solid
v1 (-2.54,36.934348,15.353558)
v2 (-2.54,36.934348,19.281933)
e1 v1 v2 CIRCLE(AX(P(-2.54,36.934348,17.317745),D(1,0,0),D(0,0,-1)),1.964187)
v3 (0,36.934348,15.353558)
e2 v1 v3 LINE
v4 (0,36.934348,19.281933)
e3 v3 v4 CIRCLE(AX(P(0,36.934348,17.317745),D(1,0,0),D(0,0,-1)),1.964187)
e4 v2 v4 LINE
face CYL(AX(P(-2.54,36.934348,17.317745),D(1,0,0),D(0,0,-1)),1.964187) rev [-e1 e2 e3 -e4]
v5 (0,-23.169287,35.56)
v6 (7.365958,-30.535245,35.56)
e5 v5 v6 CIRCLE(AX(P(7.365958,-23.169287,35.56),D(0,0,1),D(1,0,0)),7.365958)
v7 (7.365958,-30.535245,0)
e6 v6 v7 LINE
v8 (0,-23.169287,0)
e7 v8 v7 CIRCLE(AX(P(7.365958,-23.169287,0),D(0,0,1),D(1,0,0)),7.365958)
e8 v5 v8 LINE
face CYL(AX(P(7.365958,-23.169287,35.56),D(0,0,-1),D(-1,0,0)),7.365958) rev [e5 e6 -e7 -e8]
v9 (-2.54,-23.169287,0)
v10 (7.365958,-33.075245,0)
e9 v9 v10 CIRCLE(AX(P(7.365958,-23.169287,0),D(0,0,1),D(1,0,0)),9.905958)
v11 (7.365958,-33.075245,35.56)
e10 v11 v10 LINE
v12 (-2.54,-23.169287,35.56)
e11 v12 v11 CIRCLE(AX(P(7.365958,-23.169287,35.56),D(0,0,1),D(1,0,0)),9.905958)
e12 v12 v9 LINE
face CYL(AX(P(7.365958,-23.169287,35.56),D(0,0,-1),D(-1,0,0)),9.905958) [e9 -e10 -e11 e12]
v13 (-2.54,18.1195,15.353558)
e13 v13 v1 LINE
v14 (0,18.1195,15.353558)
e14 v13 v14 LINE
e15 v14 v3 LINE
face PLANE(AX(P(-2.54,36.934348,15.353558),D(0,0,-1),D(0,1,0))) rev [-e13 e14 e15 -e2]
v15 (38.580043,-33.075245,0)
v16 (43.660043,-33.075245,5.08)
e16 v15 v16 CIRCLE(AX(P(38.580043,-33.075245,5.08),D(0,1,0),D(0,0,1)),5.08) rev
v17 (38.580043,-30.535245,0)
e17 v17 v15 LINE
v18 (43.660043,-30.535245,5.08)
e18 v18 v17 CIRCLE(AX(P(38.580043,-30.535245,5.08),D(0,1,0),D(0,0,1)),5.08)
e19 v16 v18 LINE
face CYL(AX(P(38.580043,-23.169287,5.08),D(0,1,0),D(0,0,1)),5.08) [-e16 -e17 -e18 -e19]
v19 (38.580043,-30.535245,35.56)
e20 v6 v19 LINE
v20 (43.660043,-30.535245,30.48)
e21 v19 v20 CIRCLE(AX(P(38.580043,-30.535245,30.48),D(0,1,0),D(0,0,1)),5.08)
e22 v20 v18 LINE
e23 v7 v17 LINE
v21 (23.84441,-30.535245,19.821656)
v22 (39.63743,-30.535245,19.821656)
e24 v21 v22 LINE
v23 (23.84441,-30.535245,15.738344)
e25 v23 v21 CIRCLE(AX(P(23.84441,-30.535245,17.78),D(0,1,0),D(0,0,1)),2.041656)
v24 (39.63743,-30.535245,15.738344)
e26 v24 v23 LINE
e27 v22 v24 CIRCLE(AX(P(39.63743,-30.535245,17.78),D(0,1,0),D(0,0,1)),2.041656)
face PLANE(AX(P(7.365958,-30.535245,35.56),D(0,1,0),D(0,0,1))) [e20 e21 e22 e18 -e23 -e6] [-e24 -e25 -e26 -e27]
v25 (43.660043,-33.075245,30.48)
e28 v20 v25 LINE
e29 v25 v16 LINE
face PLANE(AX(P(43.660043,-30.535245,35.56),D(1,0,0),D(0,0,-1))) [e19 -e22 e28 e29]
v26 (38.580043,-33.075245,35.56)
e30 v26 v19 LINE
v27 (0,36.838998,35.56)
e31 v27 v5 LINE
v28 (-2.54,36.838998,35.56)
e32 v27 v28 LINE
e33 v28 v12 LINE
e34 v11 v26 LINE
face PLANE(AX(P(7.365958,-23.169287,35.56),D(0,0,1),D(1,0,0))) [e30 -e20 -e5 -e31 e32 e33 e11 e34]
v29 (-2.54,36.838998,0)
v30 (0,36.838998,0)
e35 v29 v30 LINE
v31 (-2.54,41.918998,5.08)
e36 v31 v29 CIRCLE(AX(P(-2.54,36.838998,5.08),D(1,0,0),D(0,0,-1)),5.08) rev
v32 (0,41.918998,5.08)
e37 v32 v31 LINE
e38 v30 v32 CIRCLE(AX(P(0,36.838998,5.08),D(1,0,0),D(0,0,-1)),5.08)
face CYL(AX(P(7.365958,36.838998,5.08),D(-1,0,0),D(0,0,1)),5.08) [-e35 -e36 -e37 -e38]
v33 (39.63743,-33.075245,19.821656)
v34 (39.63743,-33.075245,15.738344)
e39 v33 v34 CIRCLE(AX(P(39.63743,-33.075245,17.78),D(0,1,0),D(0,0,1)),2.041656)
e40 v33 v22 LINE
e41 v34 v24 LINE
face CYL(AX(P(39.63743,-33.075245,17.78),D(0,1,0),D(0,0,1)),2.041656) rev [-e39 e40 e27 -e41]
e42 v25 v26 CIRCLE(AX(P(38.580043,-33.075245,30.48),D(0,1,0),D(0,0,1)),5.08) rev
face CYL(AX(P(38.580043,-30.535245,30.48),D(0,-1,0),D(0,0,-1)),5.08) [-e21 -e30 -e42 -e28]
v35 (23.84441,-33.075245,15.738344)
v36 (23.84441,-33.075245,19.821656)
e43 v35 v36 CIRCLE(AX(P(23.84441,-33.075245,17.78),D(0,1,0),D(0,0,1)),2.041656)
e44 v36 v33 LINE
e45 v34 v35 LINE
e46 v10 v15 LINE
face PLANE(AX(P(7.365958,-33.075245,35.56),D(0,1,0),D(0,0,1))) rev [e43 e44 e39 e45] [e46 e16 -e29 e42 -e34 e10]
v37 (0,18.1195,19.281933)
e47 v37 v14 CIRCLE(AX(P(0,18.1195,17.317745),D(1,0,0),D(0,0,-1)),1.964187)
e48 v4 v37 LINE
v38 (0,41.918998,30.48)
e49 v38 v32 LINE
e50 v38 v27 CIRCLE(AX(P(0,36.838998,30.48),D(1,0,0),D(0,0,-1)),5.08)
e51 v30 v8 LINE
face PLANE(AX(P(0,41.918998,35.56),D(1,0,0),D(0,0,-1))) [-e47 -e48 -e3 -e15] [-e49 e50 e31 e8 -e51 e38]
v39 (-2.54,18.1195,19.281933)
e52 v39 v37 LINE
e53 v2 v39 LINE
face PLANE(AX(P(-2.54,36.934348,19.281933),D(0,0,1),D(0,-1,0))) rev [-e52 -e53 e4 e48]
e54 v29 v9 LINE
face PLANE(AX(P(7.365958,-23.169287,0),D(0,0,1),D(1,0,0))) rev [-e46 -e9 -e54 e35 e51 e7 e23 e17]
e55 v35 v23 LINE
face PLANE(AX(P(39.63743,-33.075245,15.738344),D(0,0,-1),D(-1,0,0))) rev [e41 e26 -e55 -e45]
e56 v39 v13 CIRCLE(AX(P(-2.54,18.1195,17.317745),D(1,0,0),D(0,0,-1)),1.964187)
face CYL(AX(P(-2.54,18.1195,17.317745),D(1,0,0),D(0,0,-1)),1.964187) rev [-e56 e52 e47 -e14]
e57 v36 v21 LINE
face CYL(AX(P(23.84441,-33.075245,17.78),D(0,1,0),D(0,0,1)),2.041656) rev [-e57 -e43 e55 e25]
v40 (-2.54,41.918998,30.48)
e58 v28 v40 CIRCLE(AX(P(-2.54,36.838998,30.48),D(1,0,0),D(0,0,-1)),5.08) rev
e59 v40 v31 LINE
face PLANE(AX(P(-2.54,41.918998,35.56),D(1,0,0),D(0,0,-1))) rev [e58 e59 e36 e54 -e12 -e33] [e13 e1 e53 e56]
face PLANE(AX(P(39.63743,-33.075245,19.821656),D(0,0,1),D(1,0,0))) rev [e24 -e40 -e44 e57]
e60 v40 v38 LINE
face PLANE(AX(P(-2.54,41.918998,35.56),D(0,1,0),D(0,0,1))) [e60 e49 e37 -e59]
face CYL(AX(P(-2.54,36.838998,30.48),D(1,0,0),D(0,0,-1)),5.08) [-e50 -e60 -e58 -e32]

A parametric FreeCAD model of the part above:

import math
import FreeCAD as App
import Part
import Sketcher
from FreeCAD import Vector
Q = App.Units.Quantity


def edges_at(feature, points):
    """Names of the edges that pass closest to the given points."""
    edges = feature.Shape.Edges
    near = lambda p: min(range(len(edges)), key=lambda i: edges[i].distToShape(Part.Vertex(*p))[0])
    return sorted({f"Edge{near(p) + 1}" for p in points})

doc = App.newDocument("Part")
body = doc.addObject("PartDesign::Body", "Body")

sketch1 = doc.addObject("Sketcher::SketchObject", "Sketch")
body.addObject(sketch1)
sketch1.AttachmentSupport = (doc.XY_Plane, [""])
sketch1.MapMode = "FlatFace"
sketch1.addGeometry([
    Part.LineSegment(Vector(0, -23.169287, 0), Vector(0, 41.918998, 0)),
    Part.LineSegment(Vector(0, 41.918998, 0), Vector(-2.54, 41.918998, 0)),
    Part.LineSegment(Vector(-2.54, 41.918998, 0), Vector(-2.54, -23.169287, 0)),
    Part.ArcOfCircle(Part.Circle(Vector(7.365958, -23.169287, 0), Vector(0, 0, 1), 9.905958), math.radians(180), math.radians(270)),
    Part.LineSegment(Vector(7.365958, -33.075245, 0), Vector(43.660043, -33.075245, 0)),
    Part.LineSegment(Vector(43.660043, -33.075245, 0), Vector(43.660043, -30.535245, 0)),
    Part.LineSegment(Vector(43.660043, -30.535245, 0), Vector(7.365958, -30.535245, 0)),
    Part.ArcOfCircle(Part.Circle(Vector(7.365958, -23.169287, 0), Vector(0, 0, 1), 7.365958), math.radians(180), math.radians(270)),
], False)
sketch1.addConstraint([
    Sketcher.Constraint("Coincident", 0, 2, 1, 1),
    Sketcher.Constraint("Coincident", 1, 2, 2, 1),
    Sketcher.Constraint("Tangent", 2, 2, 3, 1),
    Sketcher.Constraint("Tangent", 3, 2, 4, 1),
    Sketcher.Constraint("Coincident", 4, 2, 5, 1),
    Sketcher.Constraint("Coincident", 5, 2, 6, 1),
    Sketcher.Constraint("Tangent", 6, 2, 7, 2),
    Sketcher.Constraint("Tangent", 7, 1, 0, 1),
    Sketcher.Constraint("Vertical", 0),
    Sketcher.Constraint("Horizontal", 1),
    Sketcher.Constraint("Vertical", 2),
    Sketcher.Constraint("Horizontal", 4),
    Sketcher.Constraint("Vertical", 5),
    Sketcher.Constraint("Horizontal", 6),
    Sketcher.Constraint("Coincident", 7, 3, 3, 3),
    Sketcher.Constraint("PointOnObject", 0, 2, -2),
    Sketcher.Constraint("DistanceX", 1, 2, 1, 1, Q("0.1 in")),
    Sketcher.Constraint("Radius", 3, 9.905958),
    Sketcher.Constraint("DistanceY", -1, 1, 0, 2, 41.918998),
    Sketcher.Constraint("DistanceX", 4, 1, 4, 2, 36.294085),
    Sketcher.Constraint("DistanceY", 0, 1, 0, 2, 65.088285),
])
pad1 = doc.addObject("PartDesign::Pad", "Pad")
body.addObject(pad1)
pad1.Profile = sketch1
pad1.Length = Q("1.4 in")
doc.recompute()

fillet = doc.addObject("PartDesign::Fillet", "Fillet")
body.addObject(fillet)
fillet.Base = (pad1, edges_at(pad1, [
    (-1.27, 41.919, 35.56),
    (-1.27, 41.919, 0),
    (43.66, -31.805, 35.56),
    (43.66, -31.805, 0),
]))
fillet.Radius = Q("0.2 in")

sketch2 = doc.addObject("Sketcher::SketchObject", "Sketch001")
body.addObject(sketch2)
sketch2.AttachmentSupport = (doc.YZ_Plane, [""])
sketch2.MapMode = "FlatFace"
sketch2.addGeometry([
    Part.LineSegment(Vector(18.1195, 15.353558, 0), Vector(36.934348, 15.353558, 0)),
    Part.ArcOfCircle(Part.Circle(Vector(36.934348, 17.317745, 0), Vector(0, 0, 1), 1.964187), math.radians(-90), math.radians(90)),
    Part.LineSegment(Vector(36.934348, 19.281933, 0), Vector(18.1195, 19.281933, 0)),
    Part.ArcOfCircle(Part.Circle(Vector(18.1195, 17.317745, 0), Vector(0, 0, 1), 1.964187), math.radians(90), math.radians(270)),
], False)
sketch2.addConstraint([
    Sketcher.Constraint("Tangent", 0, 2, 1, 1),
    Sketcher.Constraint("Tangent", 1, 2, 2, 1),
    Sketcher.Constraint("Tangent", 2, 2, 3, 1),
    Sketcher.Constraint("Tangent", 3, 2, 0, 1),
    Sketcher.Constraint("Horizontal", 0),
    Sketcher.Constraint("Horizontal", 2),
    Sketcher.Constraint("Radius", 1, 1.964187),
    Sketcher.Constraint("DistanceX", 0, 1, 0, 2, 18.814848),
    Sketcher.Constraint("DistanceX", -1, 1, 3, 3, 18.1195),
    Sketcher.Constraint("DistanceY", -1, 1, 1, 3, 17.317745),
])
pocket1 = doc.addObject("PartDesign::Pocket", "Pocket")
body.addObject(pocket1)
pocket1.Profile = sketch2
pocket1.Type = "ThroughAll"

sketch3 = doc.addObject("Sketcher::SketchObject", "Sketch002")
body.addObject(sketch3)
sketch3.AttachmentSupport = (doc.XZ_Plane, [""])
sketch3.MapMode = "FlatFace"
sketch3.AttachmentOffset = App.Placement(Vector(0, 0, 30.535245), App.Rotation())
sketch3.addGeometry([
    Part.LineSegment(Vector(23.84441, 19.821656, 0), Vector(39.63743, 19.821656, 0)),
    Part.ArcOfCircle(Part.Circle(Vector(39.63743, 17.78, 0), Vector(0, 0, 1), 2.041656), math.radians(-90), math.radians(90)),
    Part.LineSegment(Vector(39.63743, 15.738344, 0), Vector(23.84441, 15.738344, 0)),
    Part.ArcOfCircle(Part.Circle(Vector(23.84441, 17.78, 0), Vector(0, 0, 1), 2.041656), math.radians(90), math.radians(270)),
], False)
sketch3.addConstraint([
    Sketcher.Constraint("Tangent", 0, 2, 1, 2),
    Sketcher.Constraint("Tangent", 1, 1, 2, 1),
    Sketcher.Constraint("Tangent", 2, 2, 3, 2),
    Sketcher.Constraint("Tangent", 3, 1, 0, 1),
    Sketcher.Constraint("Horizontal", 0),
    Sketcher.Constraint("Horizontal", 2),
    Sketcher.Constraint("DistanceY", -1, 1, 1, 3, Q("0.7 in")),
    Sketcher.Constraint("Radius", 1, 2.041656),
    Sketcher.Constraint("DistanceX", 0, 1, 0, 2, 15.79302),
    Sketcher.Constraint("DistanceX", -1, 1, 1, 3, 39.63743),
])
pocket2 = doc.addObject("PartDesign::Pocket", "Pocket001")
body.addObject(pocket2)
pocket2.Profile = sketch3
pocket2.Type = "ThroughAll"
pocket2.Reversed = True

doc.recompute()
